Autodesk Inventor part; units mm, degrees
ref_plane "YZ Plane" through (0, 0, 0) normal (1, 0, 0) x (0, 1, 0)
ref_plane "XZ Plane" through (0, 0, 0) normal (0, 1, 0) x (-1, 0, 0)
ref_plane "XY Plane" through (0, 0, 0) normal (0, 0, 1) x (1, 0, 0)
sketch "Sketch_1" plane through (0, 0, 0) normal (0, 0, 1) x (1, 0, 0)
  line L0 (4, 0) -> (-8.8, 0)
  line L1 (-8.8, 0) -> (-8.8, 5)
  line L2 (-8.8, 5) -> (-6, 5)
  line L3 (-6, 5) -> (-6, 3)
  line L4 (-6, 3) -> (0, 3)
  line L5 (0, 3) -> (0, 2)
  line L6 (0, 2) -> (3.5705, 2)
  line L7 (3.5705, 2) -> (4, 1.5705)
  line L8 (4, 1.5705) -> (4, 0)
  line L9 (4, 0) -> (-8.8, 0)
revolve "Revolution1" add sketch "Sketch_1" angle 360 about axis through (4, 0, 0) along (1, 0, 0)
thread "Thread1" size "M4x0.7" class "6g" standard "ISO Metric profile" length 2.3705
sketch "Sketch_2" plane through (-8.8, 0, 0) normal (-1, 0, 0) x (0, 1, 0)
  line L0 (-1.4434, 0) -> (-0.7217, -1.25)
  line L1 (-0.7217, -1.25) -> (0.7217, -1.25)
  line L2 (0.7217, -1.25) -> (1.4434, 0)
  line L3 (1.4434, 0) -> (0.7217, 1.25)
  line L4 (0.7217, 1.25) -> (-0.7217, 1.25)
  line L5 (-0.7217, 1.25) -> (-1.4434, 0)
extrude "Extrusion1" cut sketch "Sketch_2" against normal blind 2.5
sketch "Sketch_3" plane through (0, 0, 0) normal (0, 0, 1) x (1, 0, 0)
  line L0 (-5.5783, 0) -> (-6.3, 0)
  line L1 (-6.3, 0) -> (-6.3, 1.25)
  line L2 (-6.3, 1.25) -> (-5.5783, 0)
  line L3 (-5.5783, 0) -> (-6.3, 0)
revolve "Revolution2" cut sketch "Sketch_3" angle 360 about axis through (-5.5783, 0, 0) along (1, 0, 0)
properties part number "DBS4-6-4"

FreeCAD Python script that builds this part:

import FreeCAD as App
import Part
import Sketcher
Q = App.Units.Quantity


def add_polygon(sketch, points):
    """Adds a closed chain of lines whose ends are joined by coincident constraints."""
    first, n = sketch.GeometryCount, len(points)
    for a, b in zip(points, points[1:] + points[:1]):
        sketch.addGeometry(Part.LineSegment(App.Vector(*a, 0), App.Vector(*b, 0)), False)
    for i in range(n):
        sketch.addConstraint(Sketcher.Constraint("Coincident", first + i, 2, first + (i + 1) % n, 1))

doc = App.newDocument("Part")
body = doc.addObject("PartDesign::Body", "Body")

# Sketch on XY plane
sketch1 = body.newObject("Sketcher::SketchObject", "Sketch")
sketch1.AttachmentSupport = (doc.getObject("XY_Plane"), [""])
sketch1.MapMode = "FlatFace"
add_polygon(sketch1, [(-8.8, 0), (4, 0), (4, 1.6), (3.6, 2), (0, 2), (0, 3), (-6, 3), (-6, 5), (-8.8, 5)])  # lines 0-8
sketch1.addConstraint(Sketcher.Constraint("Horizontal", 0))
sketch1.addConstraint(Sketcher.Constraint("Vertical", 1))
sketch1.addConstraint(Sketcher.Constraint("Horizontal", 3))
sketch1.addConstraint(Sketcher.Constraint("Vertical", 4))
sketch1.addConstraint(Sketcher.Constraint("Horizontal", 5))
sketch1.addConstraint(Sketcher.Constraint("Vertical", 6))
sketch1.addConstraint(Sketcher.Constraint("Horizontal", 7))
sketch1.addConstraint(Sketcher.Constraint("Vertical", 8))
sketch1.addConstraint(Sketcher.Constraint("PointOnObject", 0, 2, -1))
sketch1.addConstraint(Sketcher.Constraint("PointOnObject", 3, 2, -2))
sketch1.addConstraint(Sketcher.Constraint("DistanceX", 5, 2, 5, 1, Q("6 mm")))
sketch1.addConstraint(Sketcher.Constraint("DistanceY", 4, 1, 4, 2, Q("1 mm")))
sketch1.addConstraint(Sketcher.Constraint("DistanceY", 6, 1, 6, 2, Q("2 mm")))
sketch1.addConstraint(Sketcher.Constraint("DistanceY", 8, 2, 8, 1, Q("5 mm")))
sketch1.addConstraint(Sketcher.Constraint("Angle", 2, Q("135 deg")))
sketch1.addConstraint(Sketcher.Constraint("DistanceX", 0, 1, 0, 2, Q("12.8 mm")))
sketch1.addConstraint(Sketcher.Constraint("DistanceX", 7, 2, 7, 1, Q("2.8 mm")))
sketch1.addConstraint(Sketcher.Constraint("DistanceX", 3, 2, 3, 1, Q("3.5705 mm")))
revolution = body.newObject("PartDesign::Revolution", "Revolution")
revolution.Profile = sketch1
revolution.ReferenceAxis = (sketch1, ["H_Axis"])
revolution.Angle = 360

# Sketch on YZ plane
sketch2 = body.newObject("Sketcher::SketchObject", "Sketch001")
sketch2.AttachmentSupport = (doc.getObject("YZ_Plane"), [""])
sketch2.MapMode = "FlatFace"
sketch2.AttachmentOffset = App.Placement(App.Vector(0, 0, -8.8), App.Rotation())
add_polygon(sketch2, [(-0.7, -1.2), (-1.4, 0), (-0.7, 1.2), (0.7, 1.2), (1.4, 0), (0.7, -1.2)])  # lines 0-5
sketch2.addConstraint(Sketcher.Constraint("Horizontal", 2))
sketch2.addConstraint(Sketcher.Constraint("Horizontal", 5))
sketch2.addConstraint(Sketcher.Constraint("Symmetric", 0, 2, 3, 2, -1, 1))
sketch2.addConstraint(Sketcher.Constraint("Symmetric", 1, 2, 4, 2, -1, 1))
sketch2.addConstraint(Sketcher.Constraint("PointOnObject", 0, 2, -1))
sketch2.addConstraint(Sketcher.Constraint("Parallel", 0, 3))
sketch2.addConstraint(Sketcher.Constraint("Vertical", 2, 2, 4, 2))
sketch2.addConstraint(Sketcher.Constraint("Angle", 0, Q("120.0004 deg")))
sketch2.addConstraint(Sketcher.Constraint("DistanceY", 4, 2, 2, 2, Q("2.5 mm")))
sketch2.addConstraint(Sketcher.Constraint("DistanceX", 2, 1, 2, 2, Q("1.4434 mm")))
pocket1 = body.newObject("PartDesign::Pocket", "Pocket")
pocket1.Profile = sketch2
pocket1.Length = 2.5
pocket1.Reversed = True

# Sketch on XY plane
sketch3 = body.newObject("Sketcher::SketchObject", "Sketch002")
sketch3.AttachmentSupport = (doc.getObject("XY_Plane"), [""])
sketch3.MapMode = "FlatFace"
add_polygon(sketch3, [(-6.3, 0), (-5.6, 0), (-6.3, 1.2)])  # lines 0-2
sketch3.addConstraint(Sketcher.Constraint("Horizontal", 0))
sketch3.addConstraint(Sketcher.Constraint("Vertical", 2))
sketch3.addConstraint(Sketcher.Constraint("PointOnObject", 0, 2, -1))
sketch3.addConstraint(Sketcher.Constraint("Angle", 1, Q("120.0004 deg")))
sketch3.addConstraint(Sketcher.Constraint("DistanceY", 2, 2, 2, 1, Q("1.25 mm")))
sketch3.addConstraint(Sketcher.Constraint("DistanceX", 1, 2, -1, 1, Q("6.3 mm")))
groove = body.newObject("PartDesign::Groove", "Groove")
groove.Profile = sketch3
groove.ReferenceAxis = (sketch3, ["H_Axis"])
groove.Angle = 360

doc.recompute()
